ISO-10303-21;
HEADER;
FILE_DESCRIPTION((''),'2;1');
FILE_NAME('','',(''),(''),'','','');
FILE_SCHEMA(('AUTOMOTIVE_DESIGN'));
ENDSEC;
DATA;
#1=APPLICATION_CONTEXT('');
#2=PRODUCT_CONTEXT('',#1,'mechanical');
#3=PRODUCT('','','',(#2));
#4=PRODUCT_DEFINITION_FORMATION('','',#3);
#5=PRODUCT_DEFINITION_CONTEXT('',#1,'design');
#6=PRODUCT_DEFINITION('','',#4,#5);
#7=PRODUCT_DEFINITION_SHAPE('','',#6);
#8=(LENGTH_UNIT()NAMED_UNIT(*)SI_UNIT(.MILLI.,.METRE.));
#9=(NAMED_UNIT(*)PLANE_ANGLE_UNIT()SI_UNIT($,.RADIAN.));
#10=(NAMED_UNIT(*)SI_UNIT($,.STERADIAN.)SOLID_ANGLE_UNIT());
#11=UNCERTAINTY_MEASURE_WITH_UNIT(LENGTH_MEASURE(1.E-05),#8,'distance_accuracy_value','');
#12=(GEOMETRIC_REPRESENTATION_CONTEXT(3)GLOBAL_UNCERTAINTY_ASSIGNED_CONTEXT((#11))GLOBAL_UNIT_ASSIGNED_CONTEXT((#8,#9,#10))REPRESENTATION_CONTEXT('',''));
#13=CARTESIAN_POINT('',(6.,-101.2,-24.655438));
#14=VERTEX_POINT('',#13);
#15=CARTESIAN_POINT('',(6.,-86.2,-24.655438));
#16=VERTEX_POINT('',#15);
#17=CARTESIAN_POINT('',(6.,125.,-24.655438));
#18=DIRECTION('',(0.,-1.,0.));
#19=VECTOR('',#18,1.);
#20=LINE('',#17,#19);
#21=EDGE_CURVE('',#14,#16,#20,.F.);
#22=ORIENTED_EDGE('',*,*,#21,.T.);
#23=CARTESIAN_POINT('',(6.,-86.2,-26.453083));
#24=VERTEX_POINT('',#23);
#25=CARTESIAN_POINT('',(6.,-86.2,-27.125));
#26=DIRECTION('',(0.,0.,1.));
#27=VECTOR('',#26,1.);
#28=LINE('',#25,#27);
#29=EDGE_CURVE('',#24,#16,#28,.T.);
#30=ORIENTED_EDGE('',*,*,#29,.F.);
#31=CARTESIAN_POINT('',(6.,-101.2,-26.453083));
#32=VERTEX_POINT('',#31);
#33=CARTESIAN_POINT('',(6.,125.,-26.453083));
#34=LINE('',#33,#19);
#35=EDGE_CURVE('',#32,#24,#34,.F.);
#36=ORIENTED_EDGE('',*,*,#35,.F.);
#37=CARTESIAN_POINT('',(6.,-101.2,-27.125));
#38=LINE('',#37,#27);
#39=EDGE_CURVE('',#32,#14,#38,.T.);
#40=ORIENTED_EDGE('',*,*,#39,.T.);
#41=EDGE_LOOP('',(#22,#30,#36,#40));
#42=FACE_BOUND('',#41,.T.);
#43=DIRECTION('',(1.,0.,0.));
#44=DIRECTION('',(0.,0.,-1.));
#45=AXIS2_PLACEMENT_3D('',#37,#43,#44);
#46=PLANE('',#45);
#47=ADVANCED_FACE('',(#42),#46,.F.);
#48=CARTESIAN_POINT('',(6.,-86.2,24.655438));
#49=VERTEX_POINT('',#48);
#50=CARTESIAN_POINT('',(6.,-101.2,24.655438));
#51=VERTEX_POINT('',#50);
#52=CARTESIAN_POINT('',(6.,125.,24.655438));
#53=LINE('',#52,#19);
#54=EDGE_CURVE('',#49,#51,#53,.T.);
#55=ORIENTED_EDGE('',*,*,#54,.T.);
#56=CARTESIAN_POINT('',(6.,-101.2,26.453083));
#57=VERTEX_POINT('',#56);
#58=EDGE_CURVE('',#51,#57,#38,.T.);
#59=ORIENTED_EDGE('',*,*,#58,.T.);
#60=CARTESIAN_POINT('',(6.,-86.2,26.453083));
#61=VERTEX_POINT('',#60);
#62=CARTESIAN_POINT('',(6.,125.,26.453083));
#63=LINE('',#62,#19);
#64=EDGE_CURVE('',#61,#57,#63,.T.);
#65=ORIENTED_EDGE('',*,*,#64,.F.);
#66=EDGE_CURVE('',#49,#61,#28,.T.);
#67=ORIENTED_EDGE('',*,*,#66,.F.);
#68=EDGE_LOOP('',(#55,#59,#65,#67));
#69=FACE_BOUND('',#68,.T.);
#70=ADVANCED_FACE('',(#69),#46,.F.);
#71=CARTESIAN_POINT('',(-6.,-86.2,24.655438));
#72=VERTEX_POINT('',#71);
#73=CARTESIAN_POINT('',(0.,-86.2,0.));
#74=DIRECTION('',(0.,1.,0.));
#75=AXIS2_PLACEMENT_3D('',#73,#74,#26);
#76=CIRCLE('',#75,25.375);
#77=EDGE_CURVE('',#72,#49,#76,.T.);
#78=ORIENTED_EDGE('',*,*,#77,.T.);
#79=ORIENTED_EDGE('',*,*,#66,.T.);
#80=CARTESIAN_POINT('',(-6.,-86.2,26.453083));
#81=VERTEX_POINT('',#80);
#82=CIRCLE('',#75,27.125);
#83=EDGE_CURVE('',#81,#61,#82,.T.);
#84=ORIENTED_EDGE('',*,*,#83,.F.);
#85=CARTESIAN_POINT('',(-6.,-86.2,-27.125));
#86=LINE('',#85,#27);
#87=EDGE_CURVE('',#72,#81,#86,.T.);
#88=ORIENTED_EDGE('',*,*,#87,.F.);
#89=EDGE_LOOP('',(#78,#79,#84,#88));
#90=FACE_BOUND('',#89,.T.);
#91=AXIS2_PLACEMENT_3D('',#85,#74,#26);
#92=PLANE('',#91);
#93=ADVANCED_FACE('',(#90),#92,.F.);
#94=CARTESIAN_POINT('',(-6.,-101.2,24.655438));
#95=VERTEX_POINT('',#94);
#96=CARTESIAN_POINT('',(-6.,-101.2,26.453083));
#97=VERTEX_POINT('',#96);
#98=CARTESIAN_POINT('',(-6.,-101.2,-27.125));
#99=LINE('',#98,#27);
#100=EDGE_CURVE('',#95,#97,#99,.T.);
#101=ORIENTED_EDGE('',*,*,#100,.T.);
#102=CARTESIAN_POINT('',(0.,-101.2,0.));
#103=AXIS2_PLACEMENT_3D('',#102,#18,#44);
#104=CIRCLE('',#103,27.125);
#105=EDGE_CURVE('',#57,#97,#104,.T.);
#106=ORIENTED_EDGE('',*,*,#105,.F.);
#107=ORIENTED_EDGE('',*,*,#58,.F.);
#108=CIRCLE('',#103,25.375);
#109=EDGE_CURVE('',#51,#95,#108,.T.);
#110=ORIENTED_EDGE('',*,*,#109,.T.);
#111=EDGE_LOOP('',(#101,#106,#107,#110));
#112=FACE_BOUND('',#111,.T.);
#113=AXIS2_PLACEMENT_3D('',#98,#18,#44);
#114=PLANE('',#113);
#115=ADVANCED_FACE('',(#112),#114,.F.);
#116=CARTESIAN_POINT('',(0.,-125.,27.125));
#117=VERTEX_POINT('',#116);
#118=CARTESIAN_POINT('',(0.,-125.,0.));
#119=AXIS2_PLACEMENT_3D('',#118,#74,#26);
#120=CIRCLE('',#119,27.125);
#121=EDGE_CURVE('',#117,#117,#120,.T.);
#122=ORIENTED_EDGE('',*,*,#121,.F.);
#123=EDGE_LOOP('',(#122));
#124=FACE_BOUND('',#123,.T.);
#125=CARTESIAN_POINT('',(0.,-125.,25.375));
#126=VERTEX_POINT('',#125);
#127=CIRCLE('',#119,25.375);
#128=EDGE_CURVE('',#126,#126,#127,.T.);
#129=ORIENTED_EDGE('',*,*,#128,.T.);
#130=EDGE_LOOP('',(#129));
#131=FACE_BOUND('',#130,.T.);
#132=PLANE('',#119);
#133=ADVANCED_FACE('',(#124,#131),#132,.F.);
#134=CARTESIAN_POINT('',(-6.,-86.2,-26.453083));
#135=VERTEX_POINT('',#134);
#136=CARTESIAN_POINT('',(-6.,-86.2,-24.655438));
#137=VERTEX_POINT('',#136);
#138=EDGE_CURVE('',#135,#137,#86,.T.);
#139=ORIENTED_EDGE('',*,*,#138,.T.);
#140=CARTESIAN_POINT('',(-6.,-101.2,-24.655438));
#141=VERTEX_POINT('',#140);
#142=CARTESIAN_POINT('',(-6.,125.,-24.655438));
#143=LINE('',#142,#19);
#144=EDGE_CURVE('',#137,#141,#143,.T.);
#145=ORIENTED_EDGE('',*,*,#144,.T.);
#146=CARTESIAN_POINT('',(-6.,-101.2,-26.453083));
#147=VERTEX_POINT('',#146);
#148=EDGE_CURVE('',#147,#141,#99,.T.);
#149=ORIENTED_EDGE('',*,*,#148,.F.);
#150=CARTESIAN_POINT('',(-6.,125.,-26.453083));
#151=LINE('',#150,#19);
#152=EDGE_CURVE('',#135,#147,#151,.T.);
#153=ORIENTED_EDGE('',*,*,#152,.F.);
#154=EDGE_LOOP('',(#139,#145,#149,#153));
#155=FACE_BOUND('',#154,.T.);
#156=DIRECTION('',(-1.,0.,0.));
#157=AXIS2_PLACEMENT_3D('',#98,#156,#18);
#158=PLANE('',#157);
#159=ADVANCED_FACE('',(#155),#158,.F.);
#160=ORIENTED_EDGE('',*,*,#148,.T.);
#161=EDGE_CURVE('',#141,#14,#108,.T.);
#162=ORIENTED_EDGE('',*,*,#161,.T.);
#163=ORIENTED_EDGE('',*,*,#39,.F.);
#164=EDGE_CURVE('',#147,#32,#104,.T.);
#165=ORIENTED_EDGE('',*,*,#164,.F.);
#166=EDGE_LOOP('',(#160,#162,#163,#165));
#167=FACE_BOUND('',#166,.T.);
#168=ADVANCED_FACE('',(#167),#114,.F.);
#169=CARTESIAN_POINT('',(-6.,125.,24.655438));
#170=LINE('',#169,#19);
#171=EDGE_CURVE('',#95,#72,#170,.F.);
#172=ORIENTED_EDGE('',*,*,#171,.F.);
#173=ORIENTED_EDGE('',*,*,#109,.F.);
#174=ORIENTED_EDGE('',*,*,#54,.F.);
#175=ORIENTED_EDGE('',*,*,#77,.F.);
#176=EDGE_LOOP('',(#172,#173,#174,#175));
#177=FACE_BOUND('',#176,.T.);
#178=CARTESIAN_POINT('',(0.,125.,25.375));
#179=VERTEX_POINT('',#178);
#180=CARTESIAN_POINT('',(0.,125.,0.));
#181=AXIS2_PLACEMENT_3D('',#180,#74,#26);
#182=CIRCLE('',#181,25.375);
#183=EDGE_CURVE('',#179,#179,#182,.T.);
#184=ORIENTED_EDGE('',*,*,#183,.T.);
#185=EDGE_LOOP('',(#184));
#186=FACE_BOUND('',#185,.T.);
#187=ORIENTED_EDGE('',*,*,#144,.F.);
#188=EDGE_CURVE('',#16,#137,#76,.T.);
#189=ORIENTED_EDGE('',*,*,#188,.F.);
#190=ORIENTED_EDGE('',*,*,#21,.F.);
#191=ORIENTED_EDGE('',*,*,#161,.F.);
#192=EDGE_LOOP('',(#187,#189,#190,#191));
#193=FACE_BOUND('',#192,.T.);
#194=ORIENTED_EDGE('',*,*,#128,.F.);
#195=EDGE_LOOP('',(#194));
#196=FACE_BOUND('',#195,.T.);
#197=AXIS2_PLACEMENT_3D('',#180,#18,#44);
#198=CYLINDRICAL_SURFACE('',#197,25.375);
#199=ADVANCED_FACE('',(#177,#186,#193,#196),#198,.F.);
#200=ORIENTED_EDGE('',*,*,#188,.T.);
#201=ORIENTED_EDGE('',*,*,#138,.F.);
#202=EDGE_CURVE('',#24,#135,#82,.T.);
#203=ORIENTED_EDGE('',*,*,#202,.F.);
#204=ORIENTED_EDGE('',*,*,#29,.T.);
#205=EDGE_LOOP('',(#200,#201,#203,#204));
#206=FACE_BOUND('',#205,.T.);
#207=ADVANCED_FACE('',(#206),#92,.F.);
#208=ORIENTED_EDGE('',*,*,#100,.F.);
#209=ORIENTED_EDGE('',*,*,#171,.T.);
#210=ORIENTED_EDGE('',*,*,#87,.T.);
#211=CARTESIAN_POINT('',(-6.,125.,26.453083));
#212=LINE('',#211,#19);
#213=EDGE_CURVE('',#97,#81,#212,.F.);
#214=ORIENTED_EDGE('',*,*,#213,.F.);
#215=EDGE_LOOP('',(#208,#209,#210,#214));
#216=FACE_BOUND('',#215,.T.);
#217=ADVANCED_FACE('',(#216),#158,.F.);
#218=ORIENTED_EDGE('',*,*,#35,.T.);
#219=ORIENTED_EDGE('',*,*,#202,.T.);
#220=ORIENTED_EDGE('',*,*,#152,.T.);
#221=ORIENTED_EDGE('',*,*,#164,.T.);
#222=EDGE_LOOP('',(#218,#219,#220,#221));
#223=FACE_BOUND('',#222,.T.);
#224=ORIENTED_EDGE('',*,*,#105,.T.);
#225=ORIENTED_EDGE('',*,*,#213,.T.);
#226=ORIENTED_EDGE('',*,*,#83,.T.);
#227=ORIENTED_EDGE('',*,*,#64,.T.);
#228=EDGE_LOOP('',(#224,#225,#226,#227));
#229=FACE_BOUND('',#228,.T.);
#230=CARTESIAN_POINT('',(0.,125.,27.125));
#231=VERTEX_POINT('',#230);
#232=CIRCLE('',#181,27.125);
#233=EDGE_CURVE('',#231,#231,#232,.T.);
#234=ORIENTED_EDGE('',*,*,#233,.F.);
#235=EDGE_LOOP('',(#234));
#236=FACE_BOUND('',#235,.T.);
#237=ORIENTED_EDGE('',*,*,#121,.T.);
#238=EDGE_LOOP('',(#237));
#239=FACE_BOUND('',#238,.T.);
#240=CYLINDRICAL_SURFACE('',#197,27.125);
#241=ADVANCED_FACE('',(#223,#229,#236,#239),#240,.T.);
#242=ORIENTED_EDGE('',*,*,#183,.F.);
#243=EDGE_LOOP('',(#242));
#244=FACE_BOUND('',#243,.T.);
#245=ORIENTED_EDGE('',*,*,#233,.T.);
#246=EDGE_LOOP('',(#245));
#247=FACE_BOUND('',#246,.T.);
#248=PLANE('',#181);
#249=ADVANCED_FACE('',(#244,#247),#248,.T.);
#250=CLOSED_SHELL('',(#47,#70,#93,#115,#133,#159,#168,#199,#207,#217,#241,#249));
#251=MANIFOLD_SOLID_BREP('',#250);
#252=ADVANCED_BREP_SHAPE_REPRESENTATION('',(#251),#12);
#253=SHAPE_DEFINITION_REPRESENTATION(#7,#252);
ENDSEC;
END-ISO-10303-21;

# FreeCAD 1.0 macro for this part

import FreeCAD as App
import Part
import Sketcher

V = App.Vector
Q = App.Units.Quantity


def add_polygon(sketch, points):
    """Adds a closed chain of lines whose ends are joined by coincident constraints."""
    first, n = sketch.GeometryCount, len(points)
    for a, b in zip(points, points[1:] + points[:1]):
        sketch.addGeometry(Part.LineSegment(App.Vector(*a, 0), App.Vector(*b, 0)), False)
    for i in range(n):
        sketch.addConstraint(Sketcher.Constraint("Coincident", first + i, 2, first + (i + 1) % n, 1))

doc = App.newDocument("Part")
body = doc.addObject("PartDesign::Body", "Body")

sketch1 = body.newObject("Sketcher::SketchObject", "Sketch")
sketch1.AttachmentSupport = (doc.getObject("XZ_Plane"), [""])
sketch1.MapMode = "FlatFace"
sketch1.addGeometry(Part.Circle(V(0, 0, 0), V(0, 0, 1), 27.125), False)
sketch1.addGeometry(Part.Circle(V(0, 0, 0), V(0, 0, 1), 25.375), False)
sketch1.addConstraint(Sketcher.Constraint("Coincident", 0, 3, -1, 1))
sketch1.addConstraint(Sketcher.Constraint("Coincident", 1, 3, -1, 1))
sketch1.addConstraint(Sketcher.Constraint("Diameter", 0, Q("54.25 mm")))
sketch1.addConstraint(Sketcher.Constraint("Diameter", 1, Q("50.75 mm")))
pad1 = body.newObject("PartDesign::Pad", "Pad")
pad1.Profile = sketch1
pad1.Length = 250
pad1.Midplane = True

sketch2 = body.newObject("Sketcher::SketchObject", "Sketch001")
sketch2.AttachmentSupport = (doc.getObject("XY_Plane"), [""])
sketch2.MapMode = "FlatFace"
add_polygon(sketch2, [(-6, -86.2), (-6, -101.2), (6, -101.2), (6, -86.2)])
sketch2.addConstraint(Sketcher.Constraint("Vertical", 0))
sketch2.addConstraint(Sketcher.Constraint("Horizontal", 1))
sketch2.addConstraint(Sketcher.Constraint("Vertical", 2))
sketch2.addConstraint(Sketcher.Constraint("Horizontal", 3))
sketch2.addConstraint(Sketcher.Constraint("DistanceX", 1, 1, 1, 2, Q("12 mm")))
sketch2.addConstraint(Sketcher.Constraint("DistanceY", 0, 2, 0, 1, Q("15 mm")))
sketch2.addConstraint(Sketcher.Constraint("DistanceX", 0, 2, -1, 1, Q("6 mm")))
sketch2.addConstraint(Sketcher.Constraint("DistanceY", 0, 2, -1, 1, Q("101.2 mm")))
pocket1 = body.newObject("PartDesign::Pocket", "Pocket")
pocket1.Profile = sketch2
pocket1.Type = "ThroughAll"
pocket1.Midplane = True

doc.recompute()
